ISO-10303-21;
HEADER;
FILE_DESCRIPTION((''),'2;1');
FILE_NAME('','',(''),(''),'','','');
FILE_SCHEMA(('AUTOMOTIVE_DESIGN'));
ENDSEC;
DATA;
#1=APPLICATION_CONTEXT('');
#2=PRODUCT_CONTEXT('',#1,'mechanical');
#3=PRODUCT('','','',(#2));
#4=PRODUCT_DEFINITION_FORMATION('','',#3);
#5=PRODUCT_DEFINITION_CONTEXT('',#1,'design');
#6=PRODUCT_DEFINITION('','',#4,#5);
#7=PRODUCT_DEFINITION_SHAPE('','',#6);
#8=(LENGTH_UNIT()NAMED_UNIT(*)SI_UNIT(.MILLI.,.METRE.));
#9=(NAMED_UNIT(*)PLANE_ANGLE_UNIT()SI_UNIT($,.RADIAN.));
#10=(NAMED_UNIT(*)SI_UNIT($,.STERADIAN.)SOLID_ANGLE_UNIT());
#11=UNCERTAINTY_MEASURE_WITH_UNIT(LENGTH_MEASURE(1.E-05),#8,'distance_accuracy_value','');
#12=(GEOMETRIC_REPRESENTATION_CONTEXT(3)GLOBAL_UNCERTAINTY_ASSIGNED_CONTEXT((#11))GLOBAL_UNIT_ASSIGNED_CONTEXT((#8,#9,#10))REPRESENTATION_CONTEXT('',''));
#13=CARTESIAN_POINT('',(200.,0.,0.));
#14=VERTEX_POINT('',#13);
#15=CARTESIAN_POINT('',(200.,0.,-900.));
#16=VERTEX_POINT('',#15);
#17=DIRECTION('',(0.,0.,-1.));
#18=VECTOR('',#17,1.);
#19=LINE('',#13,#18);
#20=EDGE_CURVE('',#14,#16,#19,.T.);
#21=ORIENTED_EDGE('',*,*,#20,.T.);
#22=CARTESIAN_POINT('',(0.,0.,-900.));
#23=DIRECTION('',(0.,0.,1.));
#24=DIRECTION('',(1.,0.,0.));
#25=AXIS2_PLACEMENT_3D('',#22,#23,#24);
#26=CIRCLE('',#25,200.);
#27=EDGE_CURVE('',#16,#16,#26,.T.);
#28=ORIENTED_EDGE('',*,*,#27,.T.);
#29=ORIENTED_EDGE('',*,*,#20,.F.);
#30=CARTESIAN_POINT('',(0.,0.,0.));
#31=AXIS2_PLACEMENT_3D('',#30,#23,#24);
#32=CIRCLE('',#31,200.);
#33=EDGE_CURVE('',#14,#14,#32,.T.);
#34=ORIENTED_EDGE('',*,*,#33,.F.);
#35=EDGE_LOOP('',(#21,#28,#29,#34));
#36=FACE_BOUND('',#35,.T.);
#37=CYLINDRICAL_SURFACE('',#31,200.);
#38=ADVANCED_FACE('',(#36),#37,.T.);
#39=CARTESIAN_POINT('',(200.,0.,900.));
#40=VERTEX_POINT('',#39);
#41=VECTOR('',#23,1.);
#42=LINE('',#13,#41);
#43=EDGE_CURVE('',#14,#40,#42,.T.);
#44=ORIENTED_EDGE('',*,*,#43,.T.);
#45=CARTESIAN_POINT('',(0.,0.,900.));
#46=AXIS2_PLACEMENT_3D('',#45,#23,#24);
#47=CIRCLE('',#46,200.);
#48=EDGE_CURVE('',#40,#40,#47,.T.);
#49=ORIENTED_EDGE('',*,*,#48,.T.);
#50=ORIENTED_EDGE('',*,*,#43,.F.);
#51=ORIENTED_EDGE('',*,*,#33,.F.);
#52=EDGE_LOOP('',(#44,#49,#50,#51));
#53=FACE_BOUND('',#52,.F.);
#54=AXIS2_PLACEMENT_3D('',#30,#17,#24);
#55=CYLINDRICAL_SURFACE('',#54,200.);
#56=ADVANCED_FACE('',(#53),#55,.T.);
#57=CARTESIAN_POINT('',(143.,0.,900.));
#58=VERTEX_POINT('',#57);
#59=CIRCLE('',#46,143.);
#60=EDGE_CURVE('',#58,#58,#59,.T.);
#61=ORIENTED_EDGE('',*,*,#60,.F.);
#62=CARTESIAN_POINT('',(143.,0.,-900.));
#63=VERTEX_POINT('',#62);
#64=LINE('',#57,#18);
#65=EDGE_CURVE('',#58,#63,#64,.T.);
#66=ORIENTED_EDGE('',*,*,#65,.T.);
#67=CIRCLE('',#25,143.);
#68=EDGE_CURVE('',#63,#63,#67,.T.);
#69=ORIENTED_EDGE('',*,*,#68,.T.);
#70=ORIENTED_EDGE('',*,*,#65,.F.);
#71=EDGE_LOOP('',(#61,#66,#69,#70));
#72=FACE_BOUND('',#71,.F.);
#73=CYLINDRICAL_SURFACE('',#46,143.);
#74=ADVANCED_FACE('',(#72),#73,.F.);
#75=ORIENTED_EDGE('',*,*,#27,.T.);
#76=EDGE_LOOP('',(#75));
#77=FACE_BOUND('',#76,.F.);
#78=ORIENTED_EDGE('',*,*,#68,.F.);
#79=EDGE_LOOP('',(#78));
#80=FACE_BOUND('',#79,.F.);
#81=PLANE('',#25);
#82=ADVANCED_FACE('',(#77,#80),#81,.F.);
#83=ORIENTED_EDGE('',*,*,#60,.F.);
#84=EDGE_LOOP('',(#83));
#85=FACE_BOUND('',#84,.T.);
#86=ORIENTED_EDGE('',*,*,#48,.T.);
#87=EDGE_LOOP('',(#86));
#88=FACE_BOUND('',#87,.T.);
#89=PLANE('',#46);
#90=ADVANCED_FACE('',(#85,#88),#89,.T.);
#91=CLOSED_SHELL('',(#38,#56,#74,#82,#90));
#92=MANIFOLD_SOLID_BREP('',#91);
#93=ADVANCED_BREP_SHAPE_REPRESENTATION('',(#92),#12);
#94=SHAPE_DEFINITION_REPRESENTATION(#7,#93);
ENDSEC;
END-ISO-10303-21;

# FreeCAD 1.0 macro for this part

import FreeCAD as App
import Part
import Sketcher
from FreeCAD import Vector

doc = App.newDocument("Part")
body = doc.addObject("PartDesign::Body", "Body")

sketch1 = body.newObject("Sketcher::SketchObject", "Sketch")
sketch1.AttachmentSupport = (doc.getObject("XY_Plane"), [""])
sketch1.MapMode = "FlatFace"
sketch1.addGeometry(Part.Circle(Vector(0, 0, 0), Vector(0, 0, 1), 200), False)
sketch1.addConstraint(Sketcher.Constraint("Coincident", 0, 3, -1, 1))
sketch1.addConstraint(Sketcher.Constraint("Diameter", 0, 400.0))
pad1 = body.newObject("PartDesign::Pad", "Pad")
pad1.Profile = sketch1
pad1.Length = 1800
pad1.Midplane = True

sketch2 = body.newObject("Sketcher::SketchObject", "Sketch001")
sketch2.AttachmentSupport = (doc.getObject("XY_Plane"), [""])
sketch2.MapMode = "FlatFace"
sketch2.AttachmentOffset = App.Placement(Vector(0, 0, 900), App.Rotation())
sketch2.addGeometry(Part.Circle(Vector(0, 0, 0), Vector(0, 0, 1), 143), False)
sketch2.addConstraint(Sketcher.Constraint("Coincident", 0, 3, -1, 1))
sketch2.addConstraint(Sketcher.Constraint("Diameter", 0, 286.0))
pocket1 = body.newObject("PartDesign::Pocket", "Pocket")
pocket1.Profile = sketch2
pocket1.Type = "ThroughAll"

doc.recompute()
